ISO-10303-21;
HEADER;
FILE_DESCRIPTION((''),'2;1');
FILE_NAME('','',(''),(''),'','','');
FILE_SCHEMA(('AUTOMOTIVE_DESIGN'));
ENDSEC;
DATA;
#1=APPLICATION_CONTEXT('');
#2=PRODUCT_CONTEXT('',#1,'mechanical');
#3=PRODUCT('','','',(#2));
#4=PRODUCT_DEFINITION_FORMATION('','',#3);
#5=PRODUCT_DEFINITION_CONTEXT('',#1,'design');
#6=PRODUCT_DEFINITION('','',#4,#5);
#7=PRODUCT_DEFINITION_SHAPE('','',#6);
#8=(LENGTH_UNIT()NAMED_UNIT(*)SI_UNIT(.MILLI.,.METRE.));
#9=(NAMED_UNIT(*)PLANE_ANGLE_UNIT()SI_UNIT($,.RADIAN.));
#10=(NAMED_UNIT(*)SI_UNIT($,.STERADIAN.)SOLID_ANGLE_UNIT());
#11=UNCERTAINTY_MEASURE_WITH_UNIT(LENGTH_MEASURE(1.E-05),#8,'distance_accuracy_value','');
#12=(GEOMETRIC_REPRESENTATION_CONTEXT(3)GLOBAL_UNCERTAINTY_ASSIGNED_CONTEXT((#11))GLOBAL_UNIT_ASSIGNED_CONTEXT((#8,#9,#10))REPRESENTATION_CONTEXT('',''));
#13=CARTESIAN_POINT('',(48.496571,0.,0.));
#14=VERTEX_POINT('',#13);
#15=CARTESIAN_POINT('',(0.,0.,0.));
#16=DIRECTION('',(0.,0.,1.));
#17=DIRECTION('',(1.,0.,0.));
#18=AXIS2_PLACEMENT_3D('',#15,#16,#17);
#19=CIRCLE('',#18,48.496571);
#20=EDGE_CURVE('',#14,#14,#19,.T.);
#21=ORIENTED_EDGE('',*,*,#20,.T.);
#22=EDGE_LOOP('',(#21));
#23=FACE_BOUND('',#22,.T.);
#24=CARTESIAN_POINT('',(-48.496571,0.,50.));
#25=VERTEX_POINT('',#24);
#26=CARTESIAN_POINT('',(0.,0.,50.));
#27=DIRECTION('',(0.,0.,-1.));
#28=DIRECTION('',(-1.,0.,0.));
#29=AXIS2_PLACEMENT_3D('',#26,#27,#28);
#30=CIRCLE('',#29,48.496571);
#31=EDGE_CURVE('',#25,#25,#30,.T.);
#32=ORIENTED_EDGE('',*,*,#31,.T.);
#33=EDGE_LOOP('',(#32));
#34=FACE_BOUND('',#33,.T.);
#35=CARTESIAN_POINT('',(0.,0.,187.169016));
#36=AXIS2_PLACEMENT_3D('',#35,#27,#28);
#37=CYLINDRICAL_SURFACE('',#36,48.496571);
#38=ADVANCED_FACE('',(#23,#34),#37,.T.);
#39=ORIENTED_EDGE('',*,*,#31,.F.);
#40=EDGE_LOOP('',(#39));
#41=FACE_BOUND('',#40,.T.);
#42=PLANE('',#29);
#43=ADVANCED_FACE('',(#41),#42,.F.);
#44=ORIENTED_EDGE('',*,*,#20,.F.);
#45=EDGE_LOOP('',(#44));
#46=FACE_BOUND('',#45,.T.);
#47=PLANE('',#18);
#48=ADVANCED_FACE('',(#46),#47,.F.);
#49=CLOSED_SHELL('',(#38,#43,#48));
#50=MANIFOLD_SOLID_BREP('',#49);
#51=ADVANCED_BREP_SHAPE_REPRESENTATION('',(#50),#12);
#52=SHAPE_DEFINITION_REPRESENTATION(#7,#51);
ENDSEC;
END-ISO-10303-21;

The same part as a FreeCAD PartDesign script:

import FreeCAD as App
import Part
import Sketcher

V = App.Vector
Q = App.Units.Quantity


def add_polygon(sketch, points):
    """Adds a closed chain of lines whose ends are joined by coincident constraints."""
    first, n = sketch.GeometryCount, len(points)
    for a, b in zip(points, points[1:] + points[:1]):
        sketch.addGeometry(Part.LineSegment(App.Vector(*a, 0), App.Vector(*b, 0)), False)
    for i in range(n):
        sketch.addConstraint(Sketcher.Constraint("Coincident", first + i, 2, first + (i + 1) % n, 1))

doc = App.newDocument("Part")
body = doc.addObject("PartDesign::Body", "Body")

# Sketch on XY plane
sketch1 = body.newObject("Sketcher::SketchObject", "Sketch")
sketch1.AttachmentSupport = (doc.getObject("XY_Plane"), [""])
sketch1.MapMode = "FlatFace"
add_polygon(sketch1, [(-64, 54), (-64, -54), (64, -54), (64, 54)])  # lines 0-3
add_polygon(sketch1, [(62, -52), (-62, -52), (-62, 52), (62, 52)])  # lines 4-7
sketch1.addConstraint([
    Sketcher.Constraint("Vertical", 0),
    Sketcher.Constraint("Horizontal", 1),
    Sketcher.Constraint("Vertical", 2),
    Sketcher.Constraint("Horizontal", 3),
    Sketcher.Constraint("Horizontal", 4),
    Sketcher.Constraint("Vertical", 5),
    Sketcher.Constraint("Horizontal", 6),
    Sketcher.Constraint("Vertical", 7),
    Sketcher.Constraint("Symmetric", 0, 2, 2, 2, -1, 1),
    Sketcher.Constraint("Symmetric", 4, 2, 6, 2, -1, 1),
    Sketcher.Constraint("DistanceX", 0, 2, 4, 2, Q("2 mm")),
    Sketcher.Constraint("DistanceY", 0, 2, 4, 2, Q("2 mm")),
    Sketcher.Constraint("DistanceX", 1, 1, 1, 2, Q("128.922623 mm")),
    Sketcher.Constraint("DistanceY", 0, 2, 0, 1, Q("108.547543 mm")),
])
pad1 = body.newObject("PartDesign::Pad", "Pad")
pad1.Profile = sketch1
pad1.Length = 50
body2 = doc.addObject("PartDesign::Body", "Body001")

# Sketch on XY plane
sketch2 = body2.newObject("Sketcher::SketchObject", "Sketch001")
sketch2.AttachmentSupport = (doc.getObject("XY_Plane001"), [""])
sketch2.MapMode = "FlatFace"
sketch2.addGeometry(Part.Circle(V(0, 0, 0), V(0, 0, 1), 48), False)
sketch2.addConstraint([
    Sketcher.Constraint("Coincident", 0, 3, -1, 1),
    Sketcher.Constraint("Diameter", 0, Q("96.993141 mm")),
])
pad2 = body2.newObject("PartDesign::Pad", "Pad001")
pad2.Profile = sketch2
pad2.Length = 50
body3 = doc.addObject("PartDesign::Body", "Body002")

# Sketch on XY plane
sketch3 = body3.newObject("Sketcher::SketchObject", "Sketch002")
sketch3.AttachmentSupport = (doc.getObject("XY_Plane002"), [""])
sketch3.MapMode = "FlatFace"
sketch3.addGeometry(Part.Circle(V(-51, 42, 0), V(0, 0, 1), 7), False)
sketch3.addConstraint([
    Sketcher.Constraint("Diameter", 0, Q("13.988221 mm")),
    Sketcher.Constraint("DistanceX", 0, 3, -1, 1, Q("51.126363 mm")),
    Sketcher.Constraint("DistanceY", -1, 1, 0, 3, Q("41.516846 mm")),
])
pad3 = body3.newObject("PartDesign::Pad", "Pad002")
pad3.Profile = sketch3
pad3.Length = 20
body4 = doc.addObject("PartDesign::Body", "Body003")

# Sketch on XY plane
sketch4 = body4.newObject("Sketcher::SketchObject", "Sketch003")
sketch4.AttachmentSupport = (doc.getObject("XY_Plane003"), [""])
sketch4.MapMode = "FlatFace"
sketch4.addGeometry(Part.Circle(V(46, 44, 0), V(0, 0, 1), 6), False)
sketch4.addConstraint([
    Sketcher.Constraint("Diameter", 0, Q("12.241382 mm")),
    Sketcher.Constraint("DistanceX", -1, 1, 0, 3, Q("46.461549 mm")),
    Sketcher.Constraint("DistanceY", -1, 1, 0, 3, Q("43.755957 mm")),
])
pad4 = body4.newObject("PartDesign::Pad", "Pad003")
pad4.Profile = sketch4
pad4.Length = 20
body.Visibility = False
body3.Visibility = False
body4.Visibility = False

doc.recompute()
